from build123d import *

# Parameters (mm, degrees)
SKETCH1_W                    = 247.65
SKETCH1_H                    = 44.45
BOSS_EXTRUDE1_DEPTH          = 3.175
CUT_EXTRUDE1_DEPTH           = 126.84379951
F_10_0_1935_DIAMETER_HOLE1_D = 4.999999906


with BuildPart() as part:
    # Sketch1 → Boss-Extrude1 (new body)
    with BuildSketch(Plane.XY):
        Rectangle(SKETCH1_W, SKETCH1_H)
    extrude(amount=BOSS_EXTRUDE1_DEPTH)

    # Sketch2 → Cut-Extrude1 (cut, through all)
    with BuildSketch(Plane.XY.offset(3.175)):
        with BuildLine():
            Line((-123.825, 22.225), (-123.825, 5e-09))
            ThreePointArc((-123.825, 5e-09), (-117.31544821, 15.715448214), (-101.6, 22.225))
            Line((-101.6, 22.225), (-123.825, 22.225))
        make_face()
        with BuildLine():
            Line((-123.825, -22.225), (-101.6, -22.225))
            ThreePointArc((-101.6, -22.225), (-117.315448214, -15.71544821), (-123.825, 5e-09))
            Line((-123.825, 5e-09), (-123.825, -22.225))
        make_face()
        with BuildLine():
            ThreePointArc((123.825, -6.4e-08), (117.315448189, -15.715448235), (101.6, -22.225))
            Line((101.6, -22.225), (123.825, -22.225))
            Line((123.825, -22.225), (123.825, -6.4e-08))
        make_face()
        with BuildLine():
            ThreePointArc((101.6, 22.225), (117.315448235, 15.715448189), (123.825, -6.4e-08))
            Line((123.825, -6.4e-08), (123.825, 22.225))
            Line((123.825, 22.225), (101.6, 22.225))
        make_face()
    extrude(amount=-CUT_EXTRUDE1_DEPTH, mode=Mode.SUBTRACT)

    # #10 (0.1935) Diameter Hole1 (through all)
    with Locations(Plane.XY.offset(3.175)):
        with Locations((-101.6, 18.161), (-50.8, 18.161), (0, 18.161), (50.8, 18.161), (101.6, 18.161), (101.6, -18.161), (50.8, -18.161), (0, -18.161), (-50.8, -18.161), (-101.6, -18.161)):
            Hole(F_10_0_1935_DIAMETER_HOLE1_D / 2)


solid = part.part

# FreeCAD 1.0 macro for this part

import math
import FreeCAD as App
import Part
import Sketcher
from FreeCAD import Vector
Q = App.Units.Quantity


def add_polygon(sketch, points):
    """Adds a closed chain of lines whose ends are joined by coincident constraints."""
    first, n = sketch.GeometryCount, len(points)
    for a, b in zip(points, points[1:] + points[:1]):
        sketch.addGeometry(Part.LineSegment(App.Vector(*a, 0), App.Vector(*b, 0)), False)
    for i in range(n):
        sketch.addConstraint(Sketcher.Constraint("Coincident", first + i, 2, first + (i + 1) % n, 1))

doc = App.newDocument("Part")
params = doc.addObject("Spreadsheet::Sheet", "Params")
for row, (alias, value) in enumerate([
    ("sketch1_width", "9.75 in"),
    ("sketch1_height", "1.75 in"),
    ("pad1_length", "0.125 in"),
    ("sketch2_radius", "0.875 in"),
    ("hole_diameter", "5 mm"),
], start=1):
    params.set(f"A{row}", alias)
    params.set(f"B{row}", "=" + value)
    params.setAlias(f"B{row}", alias)

body = doc.addObject("PartDesign::Body", "Body")

# Sketch on XY plane
sketch1 = body.newObject("Sketcher::SketchObject", "Sketch")
sketch1.AttachmentSupport = (doc.getObject("XY_Plane"), [""])
sketch1.MapMode = "FlatFace"
add_polygon(sketch1, [(-123.825, 22.225), (-123.825, -22.225), (123.825, -22.225), (123.825, 22.225)])  # lines 0-3
sketch1.addConstraint(Sketcher.Constraint("Vertical", 0))
sketch1.addConstraint(Sketcher.Constraint("Horizontal", 1))
sketch1.addConstraint(Sketcher.Constraint("Vertical", 2))
sketch1.addConstraint(Sketcher.Constraint("Horizontal", 3))
sketch1.addConstraint(Sketcher.Constraint("Symmetric", 0, 2, 2, 2, -1, 1))
sketch1.addConstraint(Sketcher.Constraint("DistanceX", 1, 1, 1, 2, Q("9.75 in")))
sketch1.addConstraint(Sketcher.Constraint("DistanceY", 0, 2, 0, 1, Q("1.75 in")))
sketch1.setExpression("Constraints[9]", "Params.sketch1_width")
sketch1.setExpression("Constraints[10]", "Params.sketch1_height")
pad1 = body.newObject("PartDesign::Pad", "Pad")
pad1.Profile = sketch1
pad1.setExpression("Length", "Params.pad1_length")

# Sketch on XY plane
sketch2 = body.newObject("Sketcher::SketchObject", "Sketch001")
sketch2.AttachmentSupport = (doc.getObject("XY_Plane"), [""])
sketch2.MapMode = "FlatFace"
sketch2.AttachmentOffset = App.Placement(Vector(0, 0, 0.125 * 25.4), App.Rotation())
sketch2.addGeometry(Part.LineSegment(Vector(-123.825, 22.225, 0), Vector(-123.825, 0, 0)), False)
sketch2.addGeometry(Part.ArcOfCircle(Part.Circle(Vector(-101.6, 0, 0), Vector(0, 0, 1), 22.225), math.radians(90), math.radians(180)), False)
sketch2.addGeometry(Part.LineSegment(Vector(-101.6, 22.225, 0), Vector(-123.825, 22.225, 0)), False)
sketch2.addGeometry(Part.LineSegment(Vector(-123.825, -22.225, 0), Vector(-101.6, -22.225, 0)), False)
sketch2.addGeometry(Part.ArcOfCircle(Part.Circle(Vector(-101.6, 0, 0), Vector(0, 0, 1), 22.225), math.radians(180), math.radians(270)), False)
sketch2.addGeometry(Part.LineSegment(Vector(-123.825, 0, 0), Vector(-123.825, -22.225, 0)), False)
sketch2.addGeometry(Part.ArcOfCircle(Part.Circle(Vector(101.6, 0, 0), Vector(0, 0, 1), 22.225), math.radians(-90), math.radians(0)), False)
sketch2.addGeometry(Part.LineSegment(Vector(101.6, -22.225, 0), Vector(123.825, -22.225, 0)), False)
sketch2.addGeometry(Part.LineSegment(Vector(123.825, -22.225, 0), Vector(123.825, 0, 0)), False)
sketch2.addGeometry(Part.ArcOfCircle(Part.Circle(Vector(101.6, 0, 0), Vector(0, 0, 1), 22.225), math.radians(0), math.radians(90)), False)
sketch2.addGeometry(Part.LineSegment(Vector(123.825, 0, 0), Vector(123.825, 22.225, 0)), False)
sketch2.addGeometry(Part.LineSegment(Vector(123.825, 22.225, 0), Vector(101.6, 22.225, 0)), False)
sketch2.addConstraint(Sketcher.Constraint("Tangent", 0, 2, 1, 2))
sketch2.addConstraint(Sketcher.Constraint("Tangent", 1, 1, 2, 1))
sketch2.addConstraint(Sketcher.Constraint("Coincident", 2, 2, 0, 1))
sketch2.addConstraint(Sketcher.Constraint("Tangent", 3, 2, 4, 2))
sketch2.addConstraint(Sketcher.Constraint("Tangent", 4, 1, 5, 1))
sketch2.addConstraint(Sketcher.Constraint("Coincident", 5, 2, 3, 1))
sketch2.addConstraint(Sketcher.Constraint("Tangent", 6, 1, 7, 1))
sketch2.addConstraint(Sketcher.Constraint("Coincident", 7, 2, 8, 1))
sketch2.addConstraint(Sketcher.Constraint("Tangent", 8, 2, 6, 2))
sketch2.addConstraint(Sketcher.Constraint("Tangent", 9, 1, 10, 1))
sketch2.addConstraint(Sketcher.Constraint("Coincident", 10, 2, 11, 1))
sketch2.addConstraint(Sketcher.Constraint("Tangent", 11, 2, 9, 2))
sketch2.addConstraint(Sketcher.Constraint("Vertical", 0))
sketch2.addConstraint(Sketcher.Constraint("Horizontal", 2))
sketch2.addConstraint(Sketcher.Constraint("Horizontal", 3))
sketch2.addConstraint(Sketcher.Constraint("Vertical", 5))
sketch2.addConstraint(Sketcher.Constraint("Horizontal", 7))
sketch2.addConstraint(Sketcher.Constraint("Vertical", 8))
sketch2.addConstraint(Sketcher.Constraint("Vertical", 10))
sketch2.addConstraint(Sketcher.Constraint("Horizontal", 11))
sketch2.addConstraint(Sketcher.Constraint("Coincident", 4, 3, 1, 3))
sketch2.addConstraint(Sketcher.Constraint("Coincident", 9, 3, 6, 3))
sketch2.addConstraint(Sketcher.Constraint("Equal", 1, 4))
sketch2.addConstraint(Sketcher.Constraint("Equal", 4, 6))
sketch2.addConstraint(Sketcher.Constraint("Equal", 6, 9))
sketch2.addConstraint(Sketcher.Constraint("Symmetric", 1, 3, 6, 3, -1, 1))
sketch2.addConstraint(Sketcher.Constraint("PointOnObject", 1, 3, -1))
sketch2.addConstraint(Sketcher.Constraint("DistanceX", 1, 3, -1, 1, Q("4 in")))
sketch2.addConstraint(Sketcher.Constraint("Radius", 1, Q("0.875 in")))
sketch2.setExpression("Constraints[28]", "Params.sketch2_radius")
pocket1 = body.newObject("PartDesign::Pocket", "Pocket")
pocket1.Profile = sketch2
pocket1.Type = "ThroughAll"

# Sketch on XY plane
sketch3 = body.newObject("Sketcher::SketchObject", "Sketch002")
sketch3.AttachmentSupport = (doc.getObject("XY_Plane"), [""])
sketch3.MapMode = "FlatFace"
sketch3.AttachmentOffset = App.Placement(Vector(0, 0, 0.125 * 25.4), App.Rotation())
sketch3.addGeometry(Part.Circle(Vector(-101.6, 18.161, 0), Vector(0, 0, 1), 2.5), False)
sketch3.addGeometry(Part.Circle(Vector(-50.8, 18.161, 0), Vector(0, 0, 1), 2.5), False)
sketch3.addGeometry(Part.Circle(Vector(0, 18.161, 0), Vector(0, 0, 1), 2.5), False)
sketch3.addGeometry(Part.Circle(Vector(50.8, 18.161, 0), Vector(0, 0, 1), 2.5), False)
sketch3.addGeometry(Part.Circle(Vector(101.6, 18.161, 0), Vector(0, 0, 1), 2.5), False)
sketch3.addGeometry(Part.Circle(Vector(101.6, -18.161, 0), Vector(0, 0, 1), 2.5), False)
sketch3.addGeometry(Part.Circle(Vector(50.8, -18.161, 0), Vector(0, 0, 1), 2.5), False)
sketch3.addGeometry(Part.Circle(Vector(0, -18.161, 0), Vector(0, 0, 1), 2.5), False)
sketch3.addGeometry(Part.Circle(Vector(-50.8, -18.161, 0), Vector(0, 0, 1), 2.5), False)
sketch3.addGeometry(Part.Circle(Vector(-101.6, -18.161, 0), Vector(0, 0, 1), 2.5), False)
sketch3.addConstraint(Sketcher.Constraint("Equal", 0, 1))
sketch3.addConstraint(Sketcher.Constraint("Equal", 1, 2))
sketch3.addConstraint(Sketcher.Constraint("Equal", 2, 3))
sketch3.addConstraint(Sketcher.Constraint("Equal", 3, 4))
sketch3.addConstraint(Sketcher.Constraint("Equal", 4, 5))
sketch3.addConstraint(Sketcher.Constraint("Equal", 5, 6))
sketch3.addConstraint(Sketcher.Constraint("Equal", 6, 7))
sketch3.addConstraint(Sketcher.Constraint("Equal", 7, 8))
sketch3.addConstraint(Sketcher.Constraint("Equal", 8, 9))
sketch3.addConstraint(Sketcher.Constraint("Symmetric", 0, 3, 5, 3, -1, 1))
sketch3.addConstraint(Sketcher.Constraint("Symmetric", 1, 3, 6, 3, -1, 1))
sketch3.addConstraint(Sketcher.Constraint("Symmetric", 2, 3, 7, 3, -1, 1))
sketch3.addConstraint(Sketcher.Constraint("Symmetric", 3, 3, 8, 3, -1, 1))
sketch3.addConstraint(Sketcher.Constraint("Symmetric", 4, 3, 9, 3, -1, 1))
sketch3.addConstraint(Sketcher.Constraint("Symmetric", 1, 3, 3, 3, -2))
sketch3.addConstraint(Sketcher.Constraint("Symmetric", 0, 3, 4, 3, -2))
sketch3.addConstraint(Sketcher.Constraint("PointOnObject", 2, 3, -2))
sketch3.addConstraint(Sketcher.Constraint("Horizontal", 0, 3, 1, 3))
sketch3.addConstraint(Sketcher.Constraint("Horizontal", 1, 3, 2, 3))
sketch3.addConstraint(Sketcher.Constraint("DistanceX", 0, 3, -1, 1, Q("4 in")))
sketch3.addConstraint(Sketcher.Constraint("DistanceX", 1, 3, -1, 1, Q("2 in")))
sketch3.addConstraint(Sketcher.Constraint("Diameter", 0, Q("5 mm")))
sketch3.addConstraint(Sketcher.Constraint("DistanceY", 5, 3, 4, 3, Q("1.43 in")))
doc.recompute()
hole = body.newObject("PartDesign::Hole", "Hole")
hole.Profile = sketch3
hole.ThreadType = "None"
hole.setExpression("Diameter", "Params.hole_diameter")
hole.DepthType = "ThroughAll"

doc.recompute()
